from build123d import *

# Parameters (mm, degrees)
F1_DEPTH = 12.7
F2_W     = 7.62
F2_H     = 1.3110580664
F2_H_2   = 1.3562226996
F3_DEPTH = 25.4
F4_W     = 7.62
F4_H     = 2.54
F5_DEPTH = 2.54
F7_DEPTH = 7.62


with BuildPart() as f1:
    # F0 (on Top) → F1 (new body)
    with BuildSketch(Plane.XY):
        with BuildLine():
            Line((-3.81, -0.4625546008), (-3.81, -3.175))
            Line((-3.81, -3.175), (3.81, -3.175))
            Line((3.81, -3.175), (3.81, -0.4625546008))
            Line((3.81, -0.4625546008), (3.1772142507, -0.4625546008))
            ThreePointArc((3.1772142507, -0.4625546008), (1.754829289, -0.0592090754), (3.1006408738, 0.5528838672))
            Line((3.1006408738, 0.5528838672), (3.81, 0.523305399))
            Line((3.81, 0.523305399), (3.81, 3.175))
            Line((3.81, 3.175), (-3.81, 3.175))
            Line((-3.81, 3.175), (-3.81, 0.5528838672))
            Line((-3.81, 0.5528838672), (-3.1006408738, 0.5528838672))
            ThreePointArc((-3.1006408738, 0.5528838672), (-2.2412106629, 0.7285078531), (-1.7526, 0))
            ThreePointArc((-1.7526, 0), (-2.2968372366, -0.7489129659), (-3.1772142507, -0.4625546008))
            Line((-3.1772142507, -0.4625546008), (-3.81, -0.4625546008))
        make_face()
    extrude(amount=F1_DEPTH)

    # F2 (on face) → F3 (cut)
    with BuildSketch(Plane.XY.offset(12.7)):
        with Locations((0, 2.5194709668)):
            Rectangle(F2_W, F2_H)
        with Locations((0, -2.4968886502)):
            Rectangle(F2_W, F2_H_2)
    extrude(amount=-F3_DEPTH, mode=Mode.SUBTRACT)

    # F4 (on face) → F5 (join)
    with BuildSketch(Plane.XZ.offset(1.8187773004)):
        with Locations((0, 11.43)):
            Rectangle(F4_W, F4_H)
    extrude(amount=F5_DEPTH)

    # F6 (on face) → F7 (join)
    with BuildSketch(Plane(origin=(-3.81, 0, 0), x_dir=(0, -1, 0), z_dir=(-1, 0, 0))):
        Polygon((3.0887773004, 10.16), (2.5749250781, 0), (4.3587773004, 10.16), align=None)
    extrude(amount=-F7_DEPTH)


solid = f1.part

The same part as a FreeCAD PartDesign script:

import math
import FreeCAD as App
import Part
import Sketcher

V = App.Vector
Q = App.Units.Quantity

doc = App.newDocument("Part")
body = doc.addObject("PartDesign::Body", "Body")

sketch1 = body.newObject("Sketcher::SketchObject", "Sketch")
sketch1.AttachmentSupport = (doc.getObject("XY_Plane"), [""])
sketch1.MapMode = "FlatFace"
sketch1.addGeometry([
    Part.LineSegment(V(-3.8, -0.5, 0), V(-3.8, -3.2, 0)),
    Part.LineSegment(V(-3.8, -3.2, 0), V(3.8, -3.2, 0)),
    Part.LineSegment(V(3.8, -3.2, 0), V(3.8, -0.5, 0)),
    Part.LineSegment(V(3.8, -0.5, 0), V(3.2, -0.5, 0)),
    Part.ArcOfCircle(Part.Circle(V(2.5, 0, 0), V(0, 0, 1), 0.8), math.radians(45), math.radians(324)),
    Part.LineSegment(V(3.1, 0.6, 0), V(3.8, 0.5, 0)),
    Part.LineSegment(V(3.8, 0.5, 0), V(3.8, 3.2, 0)),
    Part.LineSegment(V(3.8, 3.2, 0), V(-3.8, 3.2, 0)),
    Part.LineSegment(V(-3.8, 3.2, 0), V(-3.8, 0.6, 0)),
    Part.LineSegment(V(-3.8, 0.6, 0), V(-3.1, 0.6, 0)),
    Part.ArcOfCircle(Part.Circle(V(-2.5, 0, 0), V(0, 0, 1), 0.8), math.radians(0), math.radians(135)),
    Part.ArcOfCircle(Part.Circle(V(-2.5, 0, 0), V(0, 0, 1), 0.8), math.radians(-144), math.radians(0)),
    Part.LineSegment(V(-3.2, -0.5, 0), V(-3.8, -0.5, 0)),
], False)
sketch1.addConstraint([
    Sketcher.Constraint("Coincident", 0, 2, 1, 1),
    Sketcher.Constraint("Coincident", 1, 2, 2, 1),
    Sketcher.Constraint("Coincident", 2, 2, 3, 1),
    Sketcher.Constraint("Coincident", 3, 2, 4, 2),
    Sketcher.Constraint("Coincident", 4, 1, 5, 1),
    Sketcher.Constraint("Coincident", 5, 2, 6, 1),
    Sketcher.Constraint("Coincident", 6, 2, 7, 1),
    Sketcher.Constraint("Coincident", 7, 2, 8, 1),
    Sketcher.Constraint("Coincident", 8, 2, 9, 1),
    Sketcher.Constraint("Coincident", 9, 2, 10, 2),
    Sketcher.Constraint("Tangent", 10, 1, 11, 2),
    Sketcher.Constraint("Coincident", 11, 1, 12, 1),
    Sketcher.Constraint("Coincident", 12, 2, 0, 1),
    Sketcher.Constraint("Vertical", 0),
    Sketcher.Constraint("Horizontal", 1),
    Sketcher.Constraint("Vertical", 2),
    Sketcher.Constraint("Horizontal", 3),
    Sketcher.Constraint("Vertical", 6),
    Sketcher.Constraint("Horizontal", 7),
    Sketcher.Constraint("Vertical", 8),
    Sketcher.Constraint("Horizontal", 9),
    Sketcher.Constraint("Horizontal", 12),
    Sketcher.Constraint("Equal", 4, 10),
    Sketcher.Constraint("Equal", 10, 11),
    Sketcher.Constraint("Symmetric", 4, 3, 10, 3, -1, 1),
    Sketcher.Constraint("Symmetric", 0, 2, 6, 2, -1, 1),
    Sketcher.Constraint("Symmetric", 4, 1, 9, 2, -2),
    Sketcher.Constraint("Symmetric", 2, 2, 12, 2, -2),
    Sketcher.Constraint("PointOnObject", 10, 1, -1),
    Sketcher.Constraint("Vertical", 0, 2, 7, 2),
    Sketcher.Constraint("DistanceX", 1, 1, 1, 2, Q("0.3 in")),
    Sketcher.Constraint("Radius", 4, Q("0.031 in")),
    Sketcher.Constraint("DistanceX", -1, 1, 4, 3, Q("0.1 in")),
    Sketcher.Constraint("DistanceY", 0, 2, 7, 2, Q("0.25 in")),
    Sketcher.Constraint("DistanceX", 9, 1, 9, 2, Q("0.709359 mm")),
    Sketcher.Constraint("DistanceX", 3, 2, 3, 1, Q("0.632786 mm")),
    Sketcher.Constraint("DistanceY", 6, 1, 6, 2, Q("2.651695 mm")),
])
pad1 = body.newObject("PartDesign::Pad", "Pad")
pad1.Profile = sketch1
pad1.Length = Q("0.5 in")

sketch2 = body.newObject("Sketcher::SketchObject", "Sketch001")
sketch2.AttachmentSupport = (doc.getObject("XY_Plane"), [""])
sketch2.MapMode = "FlatFace"
sketch2.AttachmentOffset = App.Placement(V(0, 0, 0.5 * 25.4), App.Rotation())
sketch2.addGeometry([
    Part.LineSegment(V(-3.8, 3.2, 0), V(-3.8, 1.9, 0)),
    Part.LineSegment(V(-3.8, 1.9, 0), V(3.8, 1.9, 0)),
    Part.LineSegment(V(3.8, 1.9, 0), V(3.8, 3.2, 0)),
    Part.LineSegment(V(3.8, 3.2, 0), V(-3.8, 3.2, 0)),
    Part.LineSegment(V(-3.8, -1.8, 0), V(-3.8, -3.2, 0)),
    Part.LineSegment(V(-3.8, -3.2, 0), V(3.8, -3.2, 0)),
    Part.LineSegment(V(3.8, -3.2, 0), V(3.8, -1.8, 0)),
    Part.LineSegment(V(3.8, -1.8, 0), V(-3.8, -1.8, 0)),
], False)
sketch2.addConstraint([
    Sketcher.Constraint("Coincident", 0, 2, 1, 1),
    Sketcher.Constraint("Coincident", 1, 2, 2, 1),
    Sketcher.Constraint("Coincident", 2, 2, 3, 1),
    Sketcher.Constraint("Coincident", 3, 2, 0, 1),
    Sketcher.Constraint("Coincident", 4, 2, 5, 1),
    Sketcher.Constraint("Coincident", 5, 2, 6, 1),
    Sketcher.Constraint("Coincident", 6, 2, 7, 1),
    Sketcher.Constraint("Coincident", 7, 2, 4, 1),
    Sketcher.Constraint("Vertical", 0),
    Sketcher.Constraint("Horizontal", 1),
    Sketcher.Constraint("Vertical", 2),
    Sketcher.Constraint("Horizontal", 3),
    Sketcher.Constraint("Vertical", 4),
    Sketcher.Constraint("Horizontal", 5),
    Sketcher.Constraint("Vertical", 6),
    Sketcher.Constraint("Horizontal", 7),
    Sketcher.Constraint("Symmetric", 2, 2, 4, 2, -1, 1),
    Sketcher.Constraint("Vertical", 3, 2, 4, 2),
    Sketcher.Constraint("Vertical", 2, 2, 5, 2),
    Sketcher.Constraint("DistanceX", 1, 1, 1, 2, Q("0.3 in")),
    Sketcher.Constraint("DistanceY", 4, 2, 3, 2, Q("0.25 in")),
    Sketcher.Constraint("DistanceY", 0, 2, 0, 1, Q("1.311058 mm")),
    Sketcher.Constraint("DistanceY", 4, 2, 4, 1, Q("1.356223 mm")),
])
pocket1 = body.newObject("PartDesign::Pocket", "Pocket")
pocket1.Profile = sketch2
pocket1.Length = Q("1 in")

sketch3 = body.newObject("Sketcher::SketchObject", "Sketch002")
sketch3.AttachmentSupport = (doc.getObject("XZ_Plane"), [""])
sketch3.MapMode = "FlatFace"
sketch3.AttachmentOffset = App.Placement(V(0, 0, 1.818777), App.Rotation())
sketch3.addGeometry([
    Part.LineSegment(V(-3.8, 12.7, 0), V(-3.8, 10.2, 0)),
    Part.LineSegment(V(-3.8, 10.2, 0), V(3.8, 10.2, 0)),
    Part.LineSegment(V(3.8, 10.2, 0), V(3.8, 12.7, 0)),
    Part.LineSegment(V(3.8, 12.7, 0), V(-3.8, 12.7, 0)),
], False)
sketch3.addConstraint([
    Sketcher.Constraint("Coincident", 0, 2, 1, 1),
    Sketcher.Constraint("Coincident", 1, 2, 2, 1),
    Sketcher.Constraint("Coincident", 2, 2, 3, 1),
    Sketcher.Constraint("Coincident", 3, 2, 0, 1),
    Sketcher.Constraint("Vertical", 0),
    Sketcher.Constraint("Horizontal", 1),
    Sketcher.Constraint("Vertical", 2),
    Sketcher.Constraint("Horizontal", 3),
    Sketcher.Constraint("DistanceX", 1, 1, 1, 2, Q("0.3 in")),
    Sketcher.Constraint("DistanceY", 0, 2, 0, 1, Q("0.1 in")),
    Sketcher.Constraint("DistanceY", -1, 1, 0, 2, Q("0.4 in")),
    Sketcher.Constraint("DistanceX", 0, 2, -1, 1, Q("0.15 in")),
])
pad2 = body.newObject("PartDesign::Pad", "Pad001")
pad2.Profile = sketch3
pad2.Length = Q("0.1 in")

sketch4 = body.newObject("Sketcher::SketchObject", "Sketch003")
sketch4.AttachmentSupport = (doc.getObject("YZ_Plane"), [""])
sketch4.MapMode = "FlatFace"
sketch4.AttachmentOffset = App.Placement(V(0, 0, -0.15 * 25.4), App.Rotation())
sketch4.addGeometry([
    Part.LineSegment(V(-3.1, 10.2, 0), V(-2.6, 0, 0)),
    Part.LineSegment(V(-2.6, 0, 0), V(-4.4, 10.2, 0)),
    Part.LineSegment(V(-4.4, 10.2, 0), V(-3.1, 10.2, 0)),
], False)
sketch4.addConstraint([
    Sketcher.Constraint("Coincident", 0, 2, 1, 1),
    Sketcher.Constraint("Coincident", 1, 2, 2, 1),
    Sketcher.Constraint("Coincident", 2, 2, 0, 1),
    Sketcher.Constraint("Horizontal", 2),
    Sketcher.Constraint("PointOnObject", 0, 2, -1),
    Sketcher.Constraint("DistanceX", 2, 1, 2, 2, Q("0.05 in")),
    Sketcher.Constraint("DistanceY", -1, 1, 1, 2, Q("0.4 in")),
    Sketcher.Constraint("Distance", 0, Q("10.172986 mm")),
    Sketcher.Constraint("DistanceX", 0, 2, -1, 1, Q("2.574925 mm")),
])
pad3 = body.newObject("PartDesign::Pad", "Pad002")
pad3.Profile = sketch4
pad3.Length = Q("0.3 in")

doc.recompute()
